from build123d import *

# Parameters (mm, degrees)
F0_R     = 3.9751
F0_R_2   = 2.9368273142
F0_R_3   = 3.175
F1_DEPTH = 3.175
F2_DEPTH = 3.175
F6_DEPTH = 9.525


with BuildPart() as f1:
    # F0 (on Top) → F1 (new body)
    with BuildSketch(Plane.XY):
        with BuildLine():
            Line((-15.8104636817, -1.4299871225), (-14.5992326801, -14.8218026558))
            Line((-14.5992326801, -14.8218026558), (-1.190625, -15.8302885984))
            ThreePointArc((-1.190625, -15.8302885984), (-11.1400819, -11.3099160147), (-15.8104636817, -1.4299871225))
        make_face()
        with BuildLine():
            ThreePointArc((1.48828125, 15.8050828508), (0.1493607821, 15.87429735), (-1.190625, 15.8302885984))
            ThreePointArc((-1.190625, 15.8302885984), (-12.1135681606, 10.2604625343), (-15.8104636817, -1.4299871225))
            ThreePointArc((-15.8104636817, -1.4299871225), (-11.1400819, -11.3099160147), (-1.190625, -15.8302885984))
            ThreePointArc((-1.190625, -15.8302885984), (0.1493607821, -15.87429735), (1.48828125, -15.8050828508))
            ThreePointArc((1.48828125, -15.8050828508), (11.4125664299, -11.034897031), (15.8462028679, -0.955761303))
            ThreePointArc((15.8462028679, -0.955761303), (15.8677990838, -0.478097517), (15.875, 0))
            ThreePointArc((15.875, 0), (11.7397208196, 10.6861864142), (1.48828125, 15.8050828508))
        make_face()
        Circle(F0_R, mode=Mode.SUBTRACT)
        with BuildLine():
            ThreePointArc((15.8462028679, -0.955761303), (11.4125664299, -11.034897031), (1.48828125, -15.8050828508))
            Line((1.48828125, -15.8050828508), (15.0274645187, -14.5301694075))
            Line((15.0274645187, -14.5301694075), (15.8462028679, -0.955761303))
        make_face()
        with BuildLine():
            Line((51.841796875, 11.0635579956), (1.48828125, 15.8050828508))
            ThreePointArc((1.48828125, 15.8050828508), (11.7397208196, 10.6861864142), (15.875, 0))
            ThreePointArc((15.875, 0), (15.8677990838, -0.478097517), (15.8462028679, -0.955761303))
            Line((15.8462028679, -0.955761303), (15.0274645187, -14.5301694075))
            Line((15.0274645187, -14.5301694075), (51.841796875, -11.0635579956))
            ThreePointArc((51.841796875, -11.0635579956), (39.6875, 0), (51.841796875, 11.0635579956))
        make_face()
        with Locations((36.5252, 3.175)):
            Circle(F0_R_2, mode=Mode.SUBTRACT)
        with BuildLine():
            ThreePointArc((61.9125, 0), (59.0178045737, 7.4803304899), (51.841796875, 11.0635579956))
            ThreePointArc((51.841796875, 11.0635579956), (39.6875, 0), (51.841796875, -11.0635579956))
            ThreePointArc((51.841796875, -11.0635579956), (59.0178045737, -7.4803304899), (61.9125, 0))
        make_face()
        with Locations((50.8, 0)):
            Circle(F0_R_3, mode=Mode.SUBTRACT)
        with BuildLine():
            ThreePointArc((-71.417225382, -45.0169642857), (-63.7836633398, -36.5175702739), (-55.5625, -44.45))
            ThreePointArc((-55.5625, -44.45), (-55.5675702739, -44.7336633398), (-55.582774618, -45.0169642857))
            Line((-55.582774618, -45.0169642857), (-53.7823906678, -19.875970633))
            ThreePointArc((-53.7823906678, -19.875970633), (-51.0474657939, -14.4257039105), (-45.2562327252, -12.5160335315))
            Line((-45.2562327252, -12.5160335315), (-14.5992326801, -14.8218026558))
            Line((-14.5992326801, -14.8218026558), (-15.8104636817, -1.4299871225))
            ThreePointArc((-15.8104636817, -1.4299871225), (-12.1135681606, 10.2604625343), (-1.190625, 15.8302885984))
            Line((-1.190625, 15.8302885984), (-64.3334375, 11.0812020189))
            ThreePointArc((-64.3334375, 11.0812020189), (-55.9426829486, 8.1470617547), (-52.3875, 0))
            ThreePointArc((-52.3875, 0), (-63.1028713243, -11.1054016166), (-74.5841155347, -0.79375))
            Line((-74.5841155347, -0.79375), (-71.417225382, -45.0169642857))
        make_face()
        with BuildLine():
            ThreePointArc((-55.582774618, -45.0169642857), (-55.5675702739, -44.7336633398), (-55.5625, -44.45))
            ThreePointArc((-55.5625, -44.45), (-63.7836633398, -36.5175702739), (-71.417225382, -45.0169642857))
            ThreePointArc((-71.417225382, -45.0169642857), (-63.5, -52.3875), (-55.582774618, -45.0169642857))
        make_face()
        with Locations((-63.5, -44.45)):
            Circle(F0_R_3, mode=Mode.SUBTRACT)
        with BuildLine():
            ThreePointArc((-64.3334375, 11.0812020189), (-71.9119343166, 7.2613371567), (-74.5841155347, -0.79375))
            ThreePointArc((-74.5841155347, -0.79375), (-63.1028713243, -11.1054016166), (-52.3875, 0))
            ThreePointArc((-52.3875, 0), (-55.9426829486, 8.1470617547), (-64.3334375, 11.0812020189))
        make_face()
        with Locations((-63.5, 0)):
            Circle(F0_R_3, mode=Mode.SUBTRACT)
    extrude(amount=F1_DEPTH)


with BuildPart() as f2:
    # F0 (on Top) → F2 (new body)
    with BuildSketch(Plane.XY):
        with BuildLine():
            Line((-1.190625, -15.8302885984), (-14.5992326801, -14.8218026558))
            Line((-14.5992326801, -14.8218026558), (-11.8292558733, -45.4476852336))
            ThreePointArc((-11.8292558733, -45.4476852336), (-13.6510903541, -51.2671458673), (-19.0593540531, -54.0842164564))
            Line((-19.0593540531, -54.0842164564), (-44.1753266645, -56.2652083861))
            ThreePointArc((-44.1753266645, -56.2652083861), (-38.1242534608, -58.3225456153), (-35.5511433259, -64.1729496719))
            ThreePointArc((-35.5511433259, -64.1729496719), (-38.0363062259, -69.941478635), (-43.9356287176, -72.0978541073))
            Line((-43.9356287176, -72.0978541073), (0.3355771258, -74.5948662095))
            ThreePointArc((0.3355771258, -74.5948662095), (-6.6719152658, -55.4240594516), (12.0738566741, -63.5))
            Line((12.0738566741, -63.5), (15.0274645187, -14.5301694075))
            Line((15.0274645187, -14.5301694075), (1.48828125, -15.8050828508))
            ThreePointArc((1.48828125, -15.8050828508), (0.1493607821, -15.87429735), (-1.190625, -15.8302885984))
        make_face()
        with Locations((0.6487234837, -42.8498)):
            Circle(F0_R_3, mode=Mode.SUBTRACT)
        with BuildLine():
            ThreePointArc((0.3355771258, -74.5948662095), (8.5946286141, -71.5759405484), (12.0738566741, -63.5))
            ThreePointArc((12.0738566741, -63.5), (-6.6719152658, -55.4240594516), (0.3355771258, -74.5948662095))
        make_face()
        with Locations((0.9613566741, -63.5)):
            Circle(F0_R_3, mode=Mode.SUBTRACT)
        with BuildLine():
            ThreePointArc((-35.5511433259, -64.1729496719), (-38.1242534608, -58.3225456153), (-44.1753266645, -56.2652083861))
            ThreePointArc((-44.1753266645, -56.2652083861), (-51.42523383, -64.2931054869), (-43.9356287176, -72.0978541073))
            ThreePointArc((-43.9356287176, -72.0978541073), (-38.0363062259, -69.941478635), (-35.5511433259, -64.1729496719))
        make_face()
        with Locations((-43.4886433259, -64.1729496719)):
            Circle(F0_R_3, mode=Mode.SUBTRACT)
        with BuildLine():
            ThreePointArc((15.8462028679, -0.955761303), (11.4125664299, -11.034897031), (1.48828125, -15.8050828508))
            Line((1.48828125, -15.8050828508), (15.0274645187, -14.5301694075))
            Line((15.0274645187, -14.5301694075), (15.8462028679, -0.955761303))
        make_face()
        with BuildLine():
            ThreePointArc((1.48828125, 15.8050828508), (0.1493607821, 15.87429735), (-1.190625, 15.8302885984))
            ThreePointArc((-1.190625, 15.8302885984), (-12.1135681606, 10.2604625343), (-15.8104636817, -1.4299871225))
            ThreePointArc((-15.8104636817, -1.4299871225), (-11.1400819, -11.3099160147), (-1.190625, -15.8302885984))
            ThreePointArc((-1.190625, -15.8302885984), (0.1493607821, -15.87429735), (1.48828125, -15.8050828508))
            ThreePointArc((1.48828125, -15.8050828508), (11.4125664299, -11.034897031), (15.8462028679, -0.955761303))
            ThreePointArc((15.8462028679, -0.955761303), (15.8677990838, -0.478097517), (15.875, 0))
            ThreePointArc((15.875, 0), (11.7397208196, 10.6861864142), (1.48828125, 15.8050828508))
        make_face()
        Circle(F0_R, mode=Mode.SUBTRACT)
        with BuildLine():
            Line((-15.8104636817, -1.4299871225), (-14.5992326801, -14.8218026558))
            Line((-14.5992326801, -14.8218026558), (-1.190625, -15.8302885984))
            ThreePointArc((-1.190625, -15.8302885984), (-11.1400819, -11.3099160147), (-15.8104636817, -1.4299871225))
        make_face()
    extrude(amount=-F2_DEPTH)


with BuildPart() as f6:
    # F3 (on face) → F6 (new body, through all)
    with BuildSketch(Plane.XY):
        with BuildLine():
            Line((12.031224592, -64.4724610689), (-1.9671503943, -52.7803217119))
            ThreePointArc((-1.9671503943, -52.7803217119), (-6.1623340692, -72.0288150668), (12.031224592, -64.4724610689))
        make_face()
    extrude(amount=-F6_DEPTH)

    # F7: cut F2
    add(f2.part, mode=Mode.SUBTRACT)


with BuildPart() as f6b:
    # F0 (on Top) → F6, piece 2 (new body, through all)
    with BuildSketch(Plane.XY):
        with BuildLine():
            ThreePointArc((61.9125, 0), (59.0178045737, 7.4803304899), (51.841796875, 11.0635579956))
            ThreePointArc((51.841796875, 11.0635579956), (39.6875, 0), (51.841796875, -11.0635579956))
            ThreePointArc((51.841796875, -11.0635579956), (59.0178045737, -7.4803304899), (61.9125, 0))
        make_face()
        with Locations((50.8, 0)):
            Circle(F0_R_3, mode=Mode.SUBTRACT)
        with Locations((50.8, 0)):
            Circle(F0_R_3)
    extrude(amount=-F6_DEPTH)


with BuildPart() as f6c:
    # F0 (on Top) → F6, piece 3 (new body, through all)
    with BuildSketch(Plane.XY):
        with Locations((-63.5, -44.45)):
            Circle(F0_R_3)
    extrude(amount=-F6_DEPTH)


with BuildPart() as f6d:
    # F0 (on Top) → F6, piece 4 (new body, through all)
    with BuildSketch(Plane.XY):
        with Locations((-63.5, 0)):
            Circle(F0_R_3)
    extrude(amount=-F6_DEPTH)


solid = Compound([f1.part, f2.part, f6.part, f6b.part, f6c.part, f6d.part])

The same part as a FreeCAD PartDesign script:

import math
import FreeCAD as App
import Part
import Sketcher
from FreeCAD import Vector
Q = App.Units.Quantity

doc = App.newDocument("Part")
body = doc.addObject("PartDesign::Body", "Body")

# Sketch on XY plane
sketch1 = body.newObject("Sketcher::SketchObject", "Sketch")
sketch1.AttachmentSupport = (doc.getObject("XY_Plane"), [""])
sketch1.MapMode = "FlatFace"
sketch1.addGeometry(Part.ArcOfCircle(Part.Circle(Vector(0, 0, 0), Vector(0, 0, 1), 15.9), math.radians(84.62), math.radians(94.3)), False)
sketch1.addGeometry(Part.LineSegment(Vector(-1.2, 15.8, 0), Vector(-64.3, 11.1, 0)), False)
sketch1.addGeometry(Part.ArcOfCircle(Part.Circle(Vector(-63.5, 0, 0), Vector(0, 0, 1), 11.1), math.radians(94), math.radians(184)), False)
sketch1.addGeometry(Part.LineSegment(Vector(-74.6, -0.8, 0), Vector(-71.4, -45, 0)), False)
sketch1.addGeometry(Part.ArcOfCircle(Part.Circle(Vector(-63.5, -44.5, 0), Vector(0, 0, 1), 7.9), math.radians(-176), math.radians(-4)), False)
sketch1.addGeometry(Part.LineSegment(Vector(-55.6, -45, 0), Vector(-53.8, -19.9, 0)), False)
sketch1.addGeometry(Part.ArcOfCircle(Part.Circle(Vector(-45.9, -20.4, 0), Vector(0, 0, 1), 8), math.radians(86), math.radians(176)), False)
sketch1.addGeometry(Part.LineSegment(Vector(-45.3, -12.5, 0), Vector(-14.6, -14.8, 0)), False)
sketch1.addGeometry(Part.LineSegment(Vector(-14.6, -14.8, 0), Vector(-1.2, -15.8, 0)), False)
sketch1.addGeometry(Part.ArcOfCircle(Part.Circle(Vector(0, 0, 0), Vector(0, 0, 1), 15.9), math.radians(-94.3), math.radians(-84.62)), False)
sketch1.addGeometry(Part.LineSegment(Vector(1.5, -15.8, 0), Vector(51.8, -11.1, 0)), False)
sketch1.addGeometry(Part.ArcOfCircle(Part.Circle(Vector(50.8, 0, 0), Vector(0, 0, 1), 11.1), math.radians(-85), math.radians(0)), False)
sketch1.addGeometry(Part.ArcOfCircle(Part.Circle(Vector(50.8, 0, 0), Vector(0, 0, 1), 11.1), math.radians(0), math.radians(85)), False)
sketch1.addGeometry(Part.LineSegment(Vector(51.8, 11.1, 0), Vector(1.5, 15.8, 0)), False)
sketch1.addGeometry(Part.Circle(Vector(-63.5, -44.5, 0), Vector(0, 0, 1), 3.2), False)
sketch1.addGeometry(Part.Circle(Vector(-63.5, 0, 0), Vector(0, 0, 1), 3.2), False)
sketch1.addGeometry(Part.Circle(Vector(0, 0, 0), Vector(0, 0, 1), 4), False)
sketch1.addGeometry(Part.Circle(Vector(36.5, 3.2, 0), Vector(0, 0, 1), 2.9), False)
sketch1.addGeometry(Part.Circle(Vector(50.8, 0, 0), Vector(0, 0, 1), 3.2), False)
sketch1.addConstraint(Sketcher.Constraint("Tangent", 0, 2, 1, 1))
sketch1.addConstraint(Sketcher.Constraint("Tangent", 1, 2, 2, 1))
sketch1.addConstraint(Sketcher.Constraint("Tangent", 2, 2, 3, 1))
sketch1.addConstraint(Sketcher.Constraint("Tangent", 3, 2, 4, 1))
sketch1.addConstraint(Sketcher.Constraint("Tangent", 4, 2, 5, 1))
sketch1.addConstraint(Sketcher.Constraint("Tangent", 5, 2, 6, 2))
sketch1.addConstraint(Sketcher.Constraint("Tangent", 6, 1, 7, 1))
sketch1.addConstraint(Sketcher.Constraint("Coincident", 7, 2, 8, 1))
sketch1.addConstraint(Sketcher.Constraint("Tangent", 8, 2, 9, 1))
sketch1.addConstraint(Sketcher.Constraint("Tangent", 9, 2, 10, 1))
sketch1.addConstraint(Sketcher.Constraint("Tangent", 10, 2, 11, 1))
sketch1.addConstraint(Sketcher.Constraint("Tangent", 11, 2, 12, 1))
sketch1.addConstraint(Sketcher.Constraint("Tangent", 12, 2, 13, 1))
sketch1.addConstraint(Sketcher.Constraint("Tangent", 13, 2, 0, 1))
sketch1.addConstraint(Sketcher.Constraint("Coincident", 0, 3, -1, 1))
sketch1.addConstraint(Sketcher.Constraint("Coincident", 9, 3, -1, 1))
sketch1.addConstraint(Sketcher.Constraint("Coincident", 16, 3, -1, 1))
sketch1.addConstraint(Sketcher.Constraint("Coincident", 14, 3, 4, 3))
sketch1.addConstraint(Sketcher.Constraint("Coincident", 15, 3, 2, 3))
sketch1.addConstraint(Sketcher.Constraint("Coincident", 18, 3, 11, 3))
sketch1.addConstraint(Sketcher.Constraint("Equal", 0, 9))
sketch1.addConstraint(Sketcher.Constraint("Equal", 2, 11))
sketch1.addConstraint(Sketcher.Constraint("Equal", 11, 12))
sketch1.addConstraint(Sketcher.Constraint("Equal", 14, 15))
sketch1.addConstraint(Sketcher.Constraint("Equal", 15, 18))
sketch1.addConstraint(Sketcher.Constraint("PointOnObject", 2, 3, -1))
sketch1.addConstraint(Sketcher.Constraint("PointOnObject", 11, 3, -1))
sketch1.addConstraint(Sketcher.Constraint("PointOnObject", 11, 2, -1))
sketch1.addConstraint(Sketcher.Constraint("Parallel", 7, 8))
sketch1.addConstraint(Sketcher.Constraint("Horizontal", 3, 2, 4, 2))
sketch1.addConstraint(Sketcher.Constraint("Vertical", 2, 3, 4, 3))
sketch1.addConstraint(Sketcher.Constraint("Vertical", 0, 2, 8, 2))
sketch1.addConstraint(Sketcher.Constraint("Diameter", 14, Q("0.25 in")))
sketch1.addConstraint(Sketcher.Constraint("Diameter", 16, Q("0.313 in")))
sketch1.addConstraint(Sketcher.Constraint("DistanceX", -1, 1, 11, 3, Q("2 in")))
sketch1.addConstraint(Sketcher.Constraint("Radius", 0, Q("0.625 in")))
sketch1.addConstraint(Sketcher.Constraint("Radius", 2, Q("0.4375 in")))
sketch1.addConstraint(Sketcher.Constraint("Radius", 4, Q("0.3125 in")))
sketch1.addConstraint(Sketcher.Constraint("Radius", 6, Q("0.313 in")))
sketch1.addConstraint(Sketcher.Constraint("DistanceX", 2, 3, -1, 1, Q("2.5 in")))
sketch1.addConstraint(Sketcher.Constraint("DistanceY", 4, 3, -1, 1, Q("1.75 in")))
sketch1.addConstraint(Sketcher.Constraint("DistanceX", -1, 1, 17, 3, Q("1.438 in")))
sketch1.addConstraint(Sketcher.Constraint("DistanceY", -1, 1, 17, 3, Q("0.125 in")))
sketch1.addConstraint(Sketcher.Constraint("Diameter", 17, 5.873655))
sketch1.addConstraint(Sketcher.Constraint("DistanceX", 6, 1, 7, 2, 30.657))
pad1 = body.newObject("PartDesign::Pad", "Pad")
pad1.Profile = sketch1
pad1.Length = Q("0.125 in")
body2 = doc.addObject("PartDesign::Body", "Body001")

# Sketch on XY plane
sketch2 = body2.newObject("Sketcher::SketchObject", "Sketch001")
sketch2.AttachmentSupport = (doc.getObject("XY_Plane001"), [""])
sketch2.MapMode = "FlatFace"
sketch2.addGeometry(Part.LineSegment(Vector(-14.599233, -14.821803, 0), Vector(-11.829256, -45.447685, 0)), False)
sketch2.addGeometry(Part.ArcOfCircle(Part.Circle(Vector(-19.747136, -46.163823, 0), Vector(0, 0, 1), 7.9502), math.radians(-85.037065), math.radians(5.16809)), False)
sketch2.addGeometry(Part.LineSegment(Vector(-19.059354, -54.084216, 0), Vector(-44.175327, -56.265208, 0)), False)
sketch2.addGeometry(Part.ArcOfCircle(Part.Circle(Vector(-43.488643, -64.17295, 0), Vector(0, 0, 1), 7.9375), math.radians(94.962935), math.radians(266.771788)), False)
sketch2.addGeometry(Part.LineSegment(Vector(-43.935629, -72.097854, 0), Vector(0.335577, -74.594866, 0)), False)
sketch2.addGeometry(Part.ArcOfCircle(Part.Circle(Vector(0.961357, -63.5, 0), Vector(0, 0, 1), 11.1125), math.radians(-93.228212), math.radians(0)), False)
sketch2.addGeometry(Part.LineSegment(Vector(12.073857, -63.5, 0), Vector(15.027465, -14.530169, 0)), False)
sketch2.addGeometry(Part.LineSegment(Vector(15.027465, -14.530169, 0), Vector(15.846203, -0.955761, 0)), False)
sketch2.addGeometry(Part.ArcOfCircle(Part.Circle(Vector(0, 0, 0), Vector(0, 0, 1), 15.875), math.radians(-3.451605), math.radians(0)), False)
sketch2.addGeometry(Part.ArcOfCircle(Part.Circle(Vector(0, 0, 0), Vector(0, 0, 1), 15.875), math.radians(0), math.radians(84.620621)), False)
sketch2.addGeometry(Part.ArcOfCircle(Part.Circle(Vector(0, 0, 0), Vector(0, 0, 1), 15.875), math.radians(84.620621), math.radians(185.16809)), False)
sketch2.addGeometry(Part.LineSegment(Vector(-15.810464, -1.429987, 0), Vector(-14.599233, -14.821803, 0)), False)
sketch2.addGeometry(Part.Circle(Vector(-43.488643, -64.17295, 0), Vector(0, 0, 1), 3.175), False)
sketch2.addGeometry(Part.Circle(Vector(0.961357, -63.5, 0), Vector(0, 0, 1), 3.175), False)
sketch2.addGeometry(Part.Circle(Vector(0.648723, -42.8498, 0), Vector(0, 0, 1), 3.175), False)
sketch2.addGeometry(Part.Circle(Vector(0, 0, 0), Vector(0, 0, 1), 3.9751), False)
sketch2.addConstraint(Sketcher.Constraint("Coincident", 0, 2, 1, 2))
sketch2.addConstraint(Sketcher.Constraint("Coincident", 1, 1, 2, 1))
sketch2.addConstraint(Sketcher.Constraint("Coincident", 2, 2, 3, 1))
sketch2.addConstraint(Sketcher.Constraint("Coincident", 3, 2, 4, 1))
sketch2.addConstraint(Sketcher.Constraint("Coincident", 4, 2, 5, 1))
sketch2.addConstraint(Sketcher.Constraint("Coincident", 5, 2, 6, 1))
sketch2.addConstraint(Sketcher.Constraint("Coincident", 6, 2, 7, 1))
sketch2.addConstraint(Sketcher.Constraint("Coincident", 7, 2, 8, 1))
sketch2.addConstraint(Sketcher.Constraint("Coincident", 8, 2, 9, 1))
sketch2.addConstraint(Sketcher.Constraint("Coincident", 9, 2, 10, 1))
sketch2.addConstraint(Sketcher.Constraint("Coincident", 10, 2, 11, 1))
sketch2.addConstraint(Sketcher.Constraint("Coincident", 11, 2, 0, 1))
sketch2.addConstraint(Sketcher.Constraint("Coincident", 8, 3, -1, 1))
sketch2.addConstraint(Sketcher.Constraint("Coincident", 9, 3, -1, 1))
sketch2.addConstraint(Sketcher.Constraint("Coincident", 10, 3, -1, 1))
sketch2.addConstraint(Sketcher.Constraint("Coincident", 15, 3, -1, 1))
sketch2.addConstraint(Sketcher.Constraint("Coincident", 12, 3, 3, 3))
sketch2.addConstraint(Sketcher.Constraint("Coincident", 13, 3, 5, 3))
sketch2.addConstraint(Sketcher.Constraint("PointOnObject", 8, 2, -1))
sketch2.addConstraint(Sketcher.Constraint("Diameter", 12, Q("0.25 in")))
sketch2.addConstraint(Sketcher.Constraint("Diameter", 13, Q("0.25 in")))
sketch2.addConstraint(Sketcher.Constraint("Diameter", 14, Q("0.25 in")))
sketch2.addConstraint(Sketcher.Constraint("Diameter", 15, Q("0.313 in")))
sketch2.addConstraint(Sketcher.Constraint("Radius", 1, Q("0.313 in")))
sketch2.addConstraint(Sketcher.Constraint("Radius", 3, Q("0.3125 in")))
sketch2.addConstraint(Sketcher.Constraint("Radius", 5, Q("0.4375 in")))
sketch2.addConstraint(Sketcher.Constraint("Radius", 8, Q("0.625 in")))
sketch2.addConstraint(Sketcher.Constraint("DistanceY", 5, 3, -1, 1, Q("2.5 in")))
sketch2.addConstraint(Sketcher.Constraint("DistanceY", 5, 2, -1, 1, Q("2.5 in")))
sketch2.addConstraint(Sketcher.Constraint("DistanceX", 3, 3, 5, 3, Q("1.75 in")))
sketch2.addConstraint(Sketcher.Constraint("DistanceY", 14, 3, -1, 1, Q("1.687 in")))
sketch2.addConstraint(Sketcher.Constraint("DistanceY", 1, 1, -1, 1, Q("2.1292999 in")))
sketch2.addConstraint(Sketcher.Constraint("DistanceX", 1, 1, 0, 2, 7.230098))
sketch2.addConstraint(Sketcher.Constraint("Distance", 2, 25.21049))
sketch2.addConstraint(Sketcher.Constraint("Distance", 4, 44.341569))
sketch2.addConstraint(Sketcher.Constraint("Distance", 11, 13.446479))
sketch2.addConstraint(Sketcher.Constraint("DistanceY", 3, 3, -1, 1, 64.17295))
sketch2.addConstraint(Sketcher.Constraint("DistanceY", 2, 2, -1, 1, 56.265208))
sketch2.addConstraint(Sketcher.Constraint("DistanceX", 3, 2, -1, 1, 43.935629))
sketch2.addConstraint(Sketcher.Constraint("DistanceY", 6, 2, -1, 1, 14.530169))
sketch2.addConstraint(Sketcher.Constraint("DistanceY", 7, 2, -1, 1, 0.955761))
sketch2.addConstraint(Sketcher.Constraint("DistanceX", -1, 1, 9, 2, 1.488281))
sketch2.addConstraint(Sketcher.Constraint("DistanceX", 1, 3, 14, 3, 20.39586))
sketch2.addConstraint(Sketcher.Constraint("DistanceX", 1, 3, 0, 2, 7.91788))
sketch2.addConstraint(Sketcher.Constraint("DistanceY", 3, 2, 1, 3, 25.934031))
sketch2.addConstraint(Sketcher.Constraint("DistanceX", 14, 3, 6, 2, 14.378741))
sketch2.addConstraint(Sketcher.Constraint("DistanceY", 10, 2, 9, 2, 17.23507))
sketch2.addConstraint(Sketcher.Constraint("DistanceX", 10, 2, 11, 2, 1.211231))
pad2 = body2.newObject("PartDesign::Pad", "Pad001")
pad2.Profile = sketch2
pad2.Length = Q("0.125 in")
pad2.Reversed = True
body3 = doc.addObject("PartDesign::Body", "Body002")

# Sketch on XY plane
sketch3 = body3.newObject("Sketcher::SketchObject", "Sketch002")
sketch3.AttachmentSupport = (doc.getObject("XY_Plane002"), [""])
sketch3.MapMode = "FlatFace"
sketch3.addGeometry(Part.LineSegment(Vector(12, -64, 0), Vector(-2, -53, 0)), False)
sketch3.addGeometry(Part.ArcOfCircle(Part.Circle(Vector(1, -64, 0), Vector(0, 0, 1), 11), math.radians(105), math.radians(355)), False)
sketch3.addConstraint(Sketcher.Constraint("Coincident", 0, 1, 1, 2))
sketch3.addConstraint(Sketcher.Constraint("Coincident", 1, 1, 0, 2))
sketch3.addConstraint(Sketcher.Constraint("Radius", 1, Q("0.4375 in")))
sketch3.addConstraint(Sketcher.Constraint("DistanceY", 1, 3, -1, 1, Q("2.5 in")))
sketch3.addConstraint(Sketcher.Constraint("DistanceY", 0, 1, -1, 1, 64.472461))
sketch3.addConstraint(Sketcher.Constraint("DistanceX", 1, 1, -1, 1, 1.96715))
sketch3.addConstraint(Sketcher.Constraint("DistanceY", 1, 1, -1, 1, 52.780322))
pad3 = body3.newObject("PartDesign::Pad", "Pad002")
pad3.Profile = sketch3
pad3.Length = Q("0.375 in")
pad3.Reversed = True
doc.recompute()

body4 = doc.addObject("PartDesign::Body", "Body003")
body4.BaseFeature = body2
boolean = body3.newObject("PartDesign::Boolean", "Boolean")
boolean.Type = "Cut"
boolean.addObjects([body4])
doc.recompute()
body5 = doc.addObject("PartDesign::Body", "Body004")

# Sketch on XY plane
sketch4 = body5.newObject("Sketcher::SketchObject", "Sketch003")
sketch4.AttachmentSupport = (doc.getObject("XY_Plane004"), [""])
sketch4.MapMode = "FlatFace"
sketch4.addGeometry(Part.ArcOfCircle(Part.Circle(Vector(51, 0, 0), Vector(0, 0, 1), 11), math.radians(0), math.radians(85)), False)
sketch4.addGeometry(Part.ArcOfCircle(Part.Circle(Vector(51, 0, 0), Vector(0, 0, 1), 11), math.radians(85), math.radians(275)), False)
sketch4.addGeometry(Part.ArcOfCircle(Part.Circle(Vector(51, 0, 0), Vector(0, 0, 1), 11), math.radians(-85), math.radians(0)), False)
sketch4.addConstraint(Sketcher.Constraint("Tangent", 0, 2, 1, 1))
sketch4.addConstraint(Sketcher.Constraint("Tangent", 1, 2, 2, 1))
sketch4.addConstraint(Sketcher.Constraint("Tangent", 2, 2, 0, 1))
sketch4.addConstraint(Sketcher.Constraint("Symmetric", 0, 2, 1, 2, -1))
sketch4.addConstraint(Sketcher.Constraint("PointOnObject", 2, 2, -1))
sketch4.addConstraint(Sketcher.Constraint("DistanceX", -1, 1, 0, 3, Q("2 in")))
sketch4.addConstraint(Sketcher.Constraint("Radius", 0, Q("0.4375 in")))
sketch4.addConstraint(Sketcher.Constraint("DistanceX", -1, 1, 0, 2, 51.841797))
pad4 = body5.newObject("PartDesign::Pad", "Pad003")
pad4.Profile = sketch4
pad4.Length = Q("0.375 in")
pad4.Reversed = True
body6 = doc.addObject("PartDesign::Body", "Body005")

# Sketch on XY plane
sketch5 = body6.newObject("Sketcher::SketchObject", "Sketch004")
sketch5.AttachmentSupport = (doc.getObject("XY_Plane005"), [""])
sketch5.MapMode = "FlatFace"
sketch5.addGeometry(Part.Circle(Vector(-63.5, -44.5, 0), Vector(0, 0, 1), 3.2), False)
sketch5.addConstraint(Sketcher.Constraint("Diameter", 0, Q("0.25 in")))
sketch5.addConstraint(Sketcher.Constraint("DistanceX", 0, 3, -1, 1, Q("2.5 in")))
sketch5.addConstraint(Sketcher.Constraint("DistanceY", 0, 3, -1, 1, Q("1.75 in")))
pad5 = body6.newObject("PartDesign::Pad", "Pad004")
pad5.Profile = sketch5
pad5.Length = Q("0.375 in")
pad5.Reversed = True
body7 = doc.addObject("PartDesign::Body", "Body006")

# Sketch on XY plane
sketch6 = body7.newObject("Sketcher::SketchObject", "Sketch005")
sketch6.AttachmentSupport = (doc.getObject("XY_Plane006"), [""])
sketch6.MapMode = "FlatFace"
sketch6.addGeometry(Part.Circle(Vector(-63.5, 0, 0), Vector(0, 0, 1), 3.2), False)
sketch6.addConstraint(Sketcher.Constraint("PointOnObject", 0, 3, -1))
sketch6.addConstraint(Sketcher.Constraint("Diameter", 0, Q("0.25 in")))
sketch6.addConstraint(Sketcher.Constraint("DistanceX", 0, 3, -1, 1, Q("2.5 in")))
pad6 = body7.newObject("PartDesign::Pad", "Pad005")
pad6.Profile = sketch6
pad6.Length = Q("0.375 in")
pad6.Reversed = True

doc.recompute()
